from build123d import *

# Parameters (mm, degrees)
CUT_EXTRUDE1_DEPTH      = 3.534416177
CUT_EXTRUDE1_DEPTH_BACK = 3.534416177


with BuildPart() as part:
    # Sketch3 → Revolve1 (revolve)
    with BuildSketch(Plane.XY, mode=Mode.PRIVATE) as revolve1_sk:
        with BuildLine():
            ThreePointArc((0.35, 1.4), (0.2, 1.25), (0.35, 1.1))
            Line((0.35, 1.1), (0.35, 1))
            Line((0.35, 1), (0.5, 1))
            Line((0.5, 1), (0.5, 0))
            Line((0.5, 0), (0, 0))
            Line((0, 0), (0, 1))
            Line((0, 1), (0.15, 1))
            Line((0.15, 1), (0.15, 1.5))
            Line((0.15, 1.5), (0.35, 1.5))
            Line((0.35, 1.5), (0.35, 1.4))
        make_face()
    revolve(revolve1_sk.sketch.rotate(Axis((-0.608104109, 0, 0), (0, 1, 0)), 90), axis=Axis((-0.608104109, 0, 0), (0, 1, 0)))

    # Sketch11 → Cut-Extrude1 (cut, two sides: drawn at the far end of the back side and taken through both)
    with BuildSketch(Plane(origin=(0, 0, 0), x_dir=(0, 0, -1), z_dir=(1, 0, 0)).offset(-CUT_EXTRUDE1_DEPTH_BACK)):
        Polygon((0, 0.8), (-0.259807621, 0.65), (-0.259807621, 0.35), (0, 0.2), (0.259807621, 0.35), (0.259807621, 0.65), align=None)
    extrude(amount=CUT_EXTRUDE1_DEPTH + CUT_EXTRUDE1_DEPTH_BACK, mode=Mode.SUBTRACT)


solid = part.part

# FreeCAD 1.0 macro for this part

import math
import FreeCAD as App
import Part
import Sketcher

V = App.Vector
Q = App.Units.Quantity


def add_polygon(sketch, points):
    """Adds a closed chain of lines whose ends are joined by coincident constraints."""
    first, n = sketch.GeometryCount, len(points)
    for a, b in zip(points, points[1:] + points[:1]):
        sketch.addGeometry(Part.LineSegment(App.Vector(*a, 0), App.Vector(*b, 0)), False)
    for i in range(n):
        sketch.addConstraint(Sketcher.Constraint("Coincident", first + i, 2, first + (i + 1) % n, 1))

doc = App.newDocument("Part")
params = doc.addObject("Spreadsheet::Sheet", "Params")
for row, (alias, value) in enumerate([
    ("sketch1_height", "1 mm"),
    ("sketch1_radius", "0.15 mm"),
    ("sketch1_width", "0.2 mm"),
    ("sketch1_width2", "0.5 mm"),
    ("revolution_angle", "360 deg"),
    ("sketch2_width", "0.3 mm"),
    ("sketch2_length", "0.3 mm"),
], start=1):
    params.set(f"A{row}", alias)
    params.set(f"B{row}", "=" + value)
    params.setAlias(f"B{row}", alias)

body = doc.addObject("PartDesign::Body", "Body")

sketch1 = doc.addObject("Sketcher::SketchObject", "Sketch")
body.addObject(sketch1)
sketch1.AttachmentSupport = (doc.XY_Plane, [""])
sketch1.MapMode = "FlatFace"
sketch1.addGeometry(Part.ArcOfCircle(Part.Circle(V(0.35, 1.25, 0), V(0, 0, 1), 0.15), math.radians(90), math.radians(270)), False)
sketch1.addGeometry(Part.LineSegment(V(0.35, 1.4, 0), V(0.35, 1.5, 0)), False)
sketch1.addGeometry(Part.LineSegment(V(0.35, 1.5, 0), V(0.15, 1.5, 0)), False)
sketch1.addGeometry(Part.LineSegment(V(0.15, 1.5, 0), V(0.15, 1, 0)), False)
sketch1.addGeometry(Part.LineSegment(V(0.15, 1, 0), V(0, 1, 0)), False)
sketch1.addGeometry(Part.LineSegment(V(0, 1, 0), V(0, 0, 0)), False)
sketch1.addGeometry(Part.LineSegment(V(0, 0, 0), V(0.5, 0, 0)), False)
sketch1.addGeometry(Part.LineSegment(V(0.5, 0, 0), V(0.5, 1, 0)), False)
sketch1.addGeometry(Part.LineSegment(V(0.5, 1, 0), V(0.35, 1, 0)), False)
sketch1.addGeometry(Part.LineSegment(V(0.35, 1, 0), V(0.35, 1.1, 0)), False)
sketch1.addGeometry(Part.LineSegment(V(-0.608104, 0, 0), V(-0.608104, 1.5, 0)), True)
sketch1.addConstraint(Sketcher.Constraint("Coincident", 0, 1, 1, 1))
sketch1.addConstraint(Sketcher.Constraint("Coincident", 1, 2, 2, 1))
sketch1.addConstraint(Sketcher.Constraint("Coincident", 2, 2, 3, 1))
sketch1.addConstraint(Sketcher.Constraint("Coincident", 3, 2, 4, 1))
sketch1.addConstraint(Sketcher.Constraint("Coincident", 4, 2, 5, 1))
sketch1.addConstraint(Sketcher.Constraint("Coincident", 5, 2, 6, 1))
sketch1.addConstraint(Sketcher.Constraint("Coincident", 6, 2, 7, 1))
sketch1.addConstraint(Sketcher.Constraint("Coincident", 7, 2, 8, 1))
sketch1.addConstraint(Sketcher.Constraint("Coincident", 8, 2, 9, 1))
sketch1.addConstraint(Sketcher.Constraint("Coincident", 9, 2, 0, 2))
sketch1.addConstraint(Sketcher.Constraint("Vertical", 1))
sketch1.addConstraint(Sketcher.Constraint("Horizontal", 2))
sketch1.addConstraint(Sketcher.Constraint("Vertical", 3))
sketch1.addConstraint(Sketcher.Constraint("Horizontal", 4))
sketch1.addConstraint(Sketcher.Constraint("Vertical", 5))
sketch1.addConstraint(Sketcher.Constraint("Horizontal", 6))
sketch1.addConstraint(Sketcher.Constraint("Vertical", 7))
sketch1.addConstraint(Sketcher.Constraint("Horizontal", 8))
sketch1.addConstraint(Sketcher.Constraint("Vertical", 9))
sketch1.addConstraint(Sketcher.Constraint("Vertical", 10))
sketch1.addConstraint(Sketcher.Constraint("Coincident", 5, 2, -1, 1))
sketch1.addConstraint(Sketcher.Constraint("PointOnObject", 10, 1, -1))
sketch1.addConstraint(Sketcher.Constraint("Horizontal", 4, 2, 7, 2))
sketch1.addConstraint(Sketcher.Constraint("Horizontal", 2, 2, 10, 2))
sketch1.addConstraint(Sketcher.Constraint("Vertical", 1, 2, 8, 2))
sketch1.addConstraint(Sketcher.Constraint("Equal", 4, 8))
sketch1.addConstraint(Sketcher.Constraint("Equal", 6, 3))
sketch1.addConstraint(Sketcher.Constraint("Equal", 1, 9))
sketch1.addConstraint(Sketcher.Constraint("DistanceY", 5, 2, 5, 1, Q("1 mm")))
sketch1.addConstraint(Sketcher.Constraint("Radius", 0, Q("0.15 mm")))
sketch1.addConstraint(Sketcher.Constraint("DistanceX", 2, 2, 2, 1, Q("0.2 mm")))
sketch1.addConstraint(Sketcher.Constraint("DistanceX", 6, 1, 6, 2, Q("0.5 mm")))
sketch1.addConstraint(Sketcher.Constraint("DistanceX", 2, 2, 0, 3, Q("0.2 mm")))
sketch1.addConstraint(Sketcher.Constraint("DistanceX", 10, 1, -1, 1, Q("0.608104 mm")))
sketch1.setExpression("Constraints[28]", "Params.sketch1_height")
sketch1.setExpression("Constraints[29]", "Params.sketch1_radius")
sketch1.setExpression("Constraints[30]", "Params.sketch1_width")
sketch1.setExpression("Constraints[31]", "Params.sketch1_width2")
revolution = doc.addObject("PartDesign::Revolution", "Revolution")
body.addObject(revolution)
revolution.Profile = sketch1
revolution.ReferenceAxis = (sketch1, ["Axis0"])
revolution.setExpression("Angle", "Params.revolution_angle")

sketch2 = doc.addObject("Sketcher::SketchObject", "Sketch001")
body.addObject(sketch2)
sketch2.AttachmentSupport = (doc.YZ_Plane, [""])
sketch2.MapMode = "FlatFace"
add_polygon(sketch2, [(0.8, 0), (0.65, 0.259808), (0.35, 0.259808), (0.2, 0), (0.35, -0.259808), (0.65, -0.259808)])
sketch2.addConstraint(Sketcher.Constraint("Horizontal", 1))
sketch2.addConstraint(Sketcher.Constraint("Horizontal", 4))
sketch2.addConstraint(Sketcher.Constraint("Symmetric", 1, 2, 3, 2, -1))
sketch2.addConstraint(Sketcher.Constraint("PointOnObject", 2, 2, -1))
sketch2.addConstraint(Sketcher.Constraint("PointOnObject", 5, 2, -1))
sketch2.addConstraint(Sketcher.Constraint("Parallel", 0, 3))
sketch2.addConstraint(Sketcher.Constraint("Parallel", 2, 5))
sketch2.addConstraint(Sketcher.Constraint("Angle", 0, Q("120 deg")))
sketch2.addConstraint(Sketcher.Constraint("DistanceX", 1, 2, 1, 1, Q("0.3 mm")))
sketch2.addConstraint(Sketcher.Constraint("Distance", 0, Q("0.3 mm")))
sketch2.addConstraint(Sketcher.Constraint("DistanceX", -1, 1, 2, 2, Q("0.2 mm")))
sketch2.setExpression("Constraints[14]", "Params.sketch2_width")
sketch2.setExpression("Constraints[15]", "Params.sketch2_length")
pocket1 = doc.addObject("PartDesign::Pocket", "Pocket")
body.addObject(pocket1)
pocket1.Profile = sketch2
pocket1.Type = "ThroughAll"
pocket1.Midplane = True

doc.recompute()
